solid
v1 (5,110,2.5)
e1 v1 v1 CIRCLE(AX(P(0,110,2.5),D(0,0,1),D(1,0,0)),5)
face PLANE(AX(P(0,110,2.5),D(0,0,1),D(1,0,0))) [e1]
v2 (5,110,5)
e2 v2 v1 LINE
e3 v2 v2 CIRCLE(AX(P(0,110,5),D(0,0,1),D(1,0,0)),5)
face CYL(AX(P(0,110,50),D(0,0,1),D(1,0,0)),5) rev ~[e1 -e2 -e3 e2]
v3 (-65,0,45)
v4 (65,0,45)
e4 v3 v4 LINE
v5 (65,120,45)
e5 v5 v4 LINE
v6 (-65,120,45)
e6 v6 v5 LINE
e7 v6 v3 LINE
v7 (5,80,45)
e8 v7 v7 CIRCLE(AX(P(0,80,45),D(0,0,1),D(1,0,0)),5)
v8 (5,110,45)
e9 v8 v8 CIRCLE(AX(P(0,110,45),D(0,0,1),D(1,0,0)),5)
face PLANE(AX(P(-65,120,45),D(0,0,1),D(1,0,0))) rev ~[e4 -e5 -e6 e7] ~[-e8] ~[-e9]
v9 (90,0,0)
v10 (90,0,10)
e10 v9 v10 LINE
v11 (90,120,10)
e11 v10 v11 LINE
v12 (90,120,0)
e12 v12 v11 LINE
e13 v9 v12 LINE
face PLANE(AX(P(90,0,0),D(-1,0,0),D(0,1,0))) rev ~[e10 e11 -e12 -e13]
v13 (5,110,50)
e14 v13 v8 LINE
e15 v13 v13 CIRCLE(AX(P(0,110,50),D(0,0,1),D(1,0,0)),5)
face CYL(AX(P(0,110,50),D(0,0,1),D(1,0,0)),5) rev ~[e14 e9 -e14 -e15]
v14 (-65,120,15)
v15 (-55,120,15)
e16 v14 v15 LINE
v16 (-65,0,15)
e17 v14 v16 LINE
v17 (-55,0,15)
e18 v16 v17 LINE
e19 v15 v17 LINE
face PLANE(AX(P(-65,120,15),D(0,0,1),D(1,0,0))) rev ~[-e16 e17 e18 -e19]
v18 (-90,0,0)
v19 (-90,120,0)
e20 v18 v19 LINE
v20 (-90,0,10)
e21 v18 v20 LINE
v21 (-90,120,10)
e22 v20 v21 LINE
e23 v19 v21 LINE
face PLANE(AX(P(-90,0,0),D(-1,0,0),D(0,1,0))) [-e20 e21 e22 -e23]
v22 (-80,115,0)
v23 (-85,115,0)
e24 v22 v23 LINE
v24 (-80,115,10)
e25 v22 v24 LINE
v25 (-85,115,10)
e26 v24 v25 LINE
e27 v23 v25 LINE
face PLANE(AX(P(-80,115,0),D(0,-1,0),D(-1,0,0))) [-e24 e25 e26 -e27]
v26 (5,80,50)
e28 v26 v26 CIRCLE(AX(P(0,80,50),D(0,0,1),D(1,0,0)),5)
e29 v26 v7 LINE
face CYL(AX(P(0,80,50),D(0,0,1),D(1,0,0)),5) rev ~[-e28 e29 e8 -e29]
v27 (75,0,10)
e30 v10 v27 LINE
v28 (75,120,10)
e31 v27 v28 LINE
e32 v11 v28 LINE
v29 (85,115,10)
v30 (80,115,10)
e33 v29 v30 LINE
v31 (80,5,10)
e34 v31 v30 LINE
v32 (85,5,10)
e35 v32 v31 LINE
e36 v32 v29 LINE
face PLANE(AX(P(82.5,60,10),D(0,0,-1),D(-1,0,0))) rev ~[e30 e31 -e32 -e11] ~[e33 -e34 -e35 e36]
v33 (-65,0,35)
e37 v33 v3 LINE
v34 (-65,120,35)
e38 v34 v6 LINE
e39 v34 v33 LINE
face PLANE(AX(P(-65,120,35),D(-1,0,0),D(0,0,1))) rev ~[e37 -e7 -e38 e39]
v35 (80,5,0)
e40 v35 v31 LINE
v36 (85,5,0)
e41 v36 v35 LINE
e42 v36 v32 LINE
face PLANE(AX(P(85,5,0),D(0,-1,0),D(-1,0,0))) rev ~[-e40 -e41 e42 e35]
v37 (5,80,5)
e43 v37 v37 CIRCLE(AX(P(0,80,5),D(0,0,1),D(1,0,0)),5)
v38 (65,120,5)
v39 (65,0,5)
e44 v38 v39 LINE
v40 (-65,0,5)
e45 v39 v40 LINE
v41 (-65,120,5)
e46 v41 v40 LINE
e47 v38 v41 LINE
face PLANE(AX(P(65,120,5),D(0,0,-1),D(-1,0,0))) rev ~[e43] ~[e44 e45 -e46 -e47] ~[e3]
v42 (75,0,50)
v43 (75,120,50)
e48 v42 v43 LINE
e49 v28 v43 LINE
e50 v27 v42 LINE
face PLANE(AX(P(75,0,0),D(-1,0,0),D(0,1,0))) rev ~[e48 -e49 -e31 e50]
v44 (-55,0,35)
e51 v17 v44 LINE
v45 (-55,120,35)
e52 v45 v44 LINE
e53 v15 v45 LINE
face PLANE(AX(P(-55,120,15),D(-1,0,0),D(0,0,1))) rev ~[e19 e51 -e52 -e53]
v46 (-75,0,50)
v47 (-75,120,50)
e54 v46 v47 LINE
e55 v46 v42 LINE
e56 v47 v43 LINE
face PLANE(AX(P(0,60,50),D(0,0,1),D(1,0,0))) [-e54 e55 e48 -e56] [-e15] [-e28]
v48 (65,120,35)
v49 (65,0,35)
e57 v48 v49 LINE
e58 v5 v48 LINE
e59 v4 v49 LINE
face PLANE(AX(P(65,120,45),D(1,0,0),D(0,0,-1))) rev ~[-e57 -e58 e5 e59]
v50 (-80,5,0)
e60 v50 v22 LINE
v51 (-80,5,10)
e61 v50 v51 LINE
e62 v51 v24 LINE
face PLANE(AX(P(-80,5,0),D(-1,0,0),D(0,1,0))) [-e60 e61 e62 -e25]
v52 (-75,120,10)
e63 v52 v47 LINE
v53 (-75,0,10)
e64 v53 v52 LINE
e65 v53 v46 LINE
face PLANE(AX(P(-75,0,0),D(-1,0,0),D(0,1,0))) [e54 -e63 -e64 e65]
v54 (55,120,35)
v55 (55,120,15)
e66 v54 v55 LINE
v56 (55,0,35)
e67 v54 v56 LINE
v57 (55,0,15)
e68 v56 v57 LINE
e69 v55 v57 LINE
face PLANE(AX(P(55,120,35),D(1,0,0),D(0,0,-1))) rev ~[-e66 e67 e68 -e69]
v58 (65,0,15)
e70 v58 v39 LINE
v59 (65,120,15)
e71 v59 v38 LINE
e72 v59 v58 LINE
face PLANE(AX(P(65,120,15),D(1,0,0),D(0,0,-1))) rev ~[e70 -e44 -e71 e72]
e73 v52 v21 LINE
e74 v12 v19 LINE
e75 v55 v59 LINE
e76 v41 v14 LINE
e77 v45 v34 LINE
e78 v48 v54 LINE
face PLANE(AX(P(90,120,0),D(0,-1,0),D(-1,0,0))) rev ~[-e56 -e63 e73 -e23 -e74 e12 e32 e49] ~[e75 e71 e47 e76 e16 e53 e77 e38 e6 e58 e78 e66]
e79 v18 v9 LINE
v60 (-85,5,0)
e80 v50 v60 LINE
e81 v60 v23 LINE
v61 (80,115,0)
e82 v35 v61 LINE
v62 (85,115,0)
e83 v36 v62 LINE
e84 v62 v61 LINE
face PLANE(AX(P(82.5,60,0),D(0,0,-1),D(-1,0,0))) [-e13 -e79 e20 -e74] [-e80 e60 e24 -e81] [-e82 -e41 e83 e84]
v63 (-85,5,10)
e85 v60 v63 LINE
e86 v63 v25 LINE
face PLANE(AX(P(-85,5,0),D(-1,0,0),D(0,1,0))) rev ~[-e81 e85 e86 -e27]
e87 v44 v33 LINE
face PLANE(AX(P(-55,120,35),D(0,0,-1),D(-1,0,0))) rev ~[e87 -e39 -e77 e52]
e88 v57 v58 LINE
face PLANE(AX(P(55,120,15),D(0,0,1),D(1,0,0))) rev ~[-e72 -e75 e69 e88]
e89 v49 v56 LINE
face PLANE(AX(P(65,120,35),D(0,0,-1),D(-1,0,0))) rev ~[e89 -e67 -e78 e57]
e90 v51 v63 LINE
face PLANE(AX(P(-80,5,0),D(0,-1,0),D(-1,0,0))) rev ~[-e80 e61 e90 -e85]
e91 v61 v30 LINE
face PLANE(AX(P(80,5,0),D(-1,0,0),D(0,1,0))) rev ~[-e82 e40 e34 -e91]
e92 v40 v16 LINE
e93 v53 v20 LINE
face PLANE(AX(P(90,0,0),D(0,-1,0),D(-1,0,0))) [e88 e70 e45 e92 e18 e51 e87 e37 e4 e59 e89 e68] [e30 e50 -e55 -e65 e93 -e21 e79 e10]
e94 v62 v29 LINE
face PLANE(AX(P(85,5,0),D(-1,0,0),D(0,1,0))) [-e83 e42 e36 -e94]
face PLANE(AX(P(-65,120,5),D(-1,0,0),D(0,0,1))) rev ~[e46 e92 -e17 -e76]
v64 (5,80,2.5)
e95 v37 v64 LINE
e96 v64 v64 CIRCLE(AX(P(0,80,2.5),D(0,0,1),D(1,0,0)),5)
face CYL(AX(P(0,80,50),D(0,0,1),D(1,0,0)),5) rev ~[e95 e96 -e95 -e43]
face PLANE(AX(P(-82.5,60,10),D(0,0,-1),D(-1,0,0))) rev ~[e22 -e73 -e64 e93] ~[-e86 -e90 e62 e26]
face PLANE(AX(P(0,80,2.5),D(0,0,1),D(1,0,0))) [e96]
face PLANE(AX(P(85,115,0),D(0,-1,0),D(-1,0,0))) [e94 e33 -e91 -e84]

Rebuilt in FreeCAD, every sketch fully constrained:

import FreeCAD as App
import Part
import Sketcher
from FreeCAD import Vector


def add_polygon(sketch, points):
    """Adds a closed chain of lines whose ends are joined by coincident constraints."""
    first, n = sketch.GeometryCount, len(points)
    for a, b in zip(points, points[1:] + points[:1]):
        sketch.addGeometry(Part.LineSegment(App.Vector(*a, 0), App.Vector(*b, 0)), False)
    for i in range(n):
        sketch.addConstraint(Sketcher.Constraint("Coincident", first + i, 2, first + (i + 1) % n, 1))

doc = App.newDocument("Part")
body = doc.addObject("PartDesign::Body", "Body")

# Sketch on XY plane
sketch1 = body.newObject("Sketcher::SketchObject", "Sketch")
sketch1.AttachmentSupport = (doc.getObject("XY_Plane"), [""])
sketch1.MapMode = "FlatFace"
add_polygon(sketch1, [(-75, 120), (-75, 0), (75, 0), (75, 120)])  # lines 0-3
sketch1.addConstraint(Sketcher.Constraint("Vertical", 0))
sketch1.addConstraint(Sketcher.Constraint("Horizontal", 1))
sketch1.addConstraint(Sketcher.Constraint("Vertical", 2))
sketch1.addConstraint(Sketcher.Constraint("Horizontal", 3))
sketch1.addConstraint(Sketcher.Constraint("Symmetric", 0, 2, 1, 2, -1, 1))
sketch1.addConstraint(Sketcher.Constraint("DistanceX", 1, 1, 1, 2, 150.0))
sketch1.addConstraint(Sketcher.Constraint("DistanceY", 0, 2, 0, 1, 120.0))
pad1 = body.newObject("PartDesign::Pad", "Pad")
pad1.Profile = sketch1
pad1.Length = 50

# Sketch on XZ plane
sketch2 = body.newObject("Sketcher::SketchObject", "Sketch001")
sketch2.AttachmentSupport = (doc.getObject("XZ_Plane"), [""])
sketch2.MapMode = "FlatFace"
sketch2.AttachmentOffset = App.Placement(Vector(0, 0, -120), App.Rotation())
add_polygon(sketch2, [(-65, 5), (-65, 15), (-55, 15), (-55, 35), (-65, 35), (-65, 45), (65, 45), (65, 35), (55, 35), (55, 15), (65, 15), (65, 5)])  # lines 0-11
sketch2.addConstraint(Sketcher.Constraint("Vertical", 0))
sketch2.addConstraint(Sketcher.Constraint("Horizontal", 1))
sketch2.addConstraint(Sketcher.Constraint("Vertical", 2))
sketch2.addConstraint(Sketcher.Constraint("Horizontal", 3))
sketch2.addConstraint(Sketcher.Constraint("Vertical", 4))
sketch2.addConstraint(Sketcher.Constraint("Horizontal", 5))
sketch2.addConstraint(Sketcher.Constraint("Vertical", 6))
sketch2.addConstraint(Sketcher.Constraint("Horizontal", 7))
sketch2.addConstraint(Sketcher.Constraint("Vertical", 8))
sketch2.addConstraint(Sketcher.Constraint("Horizontal", 9))
sketch2.addConstraint(Sketcher.Constraint("Vertical", 10))
sketch2.addConstraint(Sketcher.Constraint("Horizontal", 11))
sketch2.addConstraint(Sketcher.Constraint("Symmetric", 3, 2, 6, 2, -2))
sketch2.addConstraint(Sketcher.Constraint("Symmetric", 1, 2, 8, 2, -2))
sketch2.addConstraint(Sketcher.Constraint("Vertical", 0, 2, 3, 2))
sketch2.addConstraint(Sketcher.Constraint("Vertical", 6, 2, 9, 2))
sketch2.addConstraint(Sketcher.Constraint("Equal", 9, 0))
sketch2.addConstraint(Sketcher.Constraint("Equal", 0, 4))
sketch2.addConstraint(Sketcher.Constraint("DistanceX", 1, 1, 1, 2, 10.0))
sketch2.addConstraint(Sketcher.Constraint("DistanceX", 5, 1, 5, 2, 130.0))
sketch2.addConstraint(Sketcher.Constraint("DistanceY", 2, 1, 2, 2, 20.0))
sketch2.addConstraint(Sketcher.Constraint("DistanceY", -1, 1, 0, 2, 15.0))
pocket1 = body.newObject("PartDesign::Pocket", "Pocket")
pocket1.Profile = sketch2
pocket1.Type = "ThroughAll"
pocket1.Reversed = True

# Sketch on XY plane
sketch3 = body.newObject("Sketcher::SketchObject", "Sketch002")
sketch3.AttachmentSupport = (doc.getObject("XY_Plane"), [""])
sketch3.MapMode = "FlatFace"
sketch3.AttachmentOffset = App.Placement(Vector(0, 0, 50), App.Rotation())
sketch3.addGeometry(Part.Circle(Vector(0, 110, 0), Vector(0, 0, 1), 5), False)
sketch3.addGeometry(Part.Circle(Vector(0, 80, 0), Vector(0, 0, 1), 5), False)
sketch3.addConstraint(Sketcher.Constraint("Equal", 0, 1))
sketch3.addConstraint(Sketcher.Constraint("PointOnObject", 0, 3, -2))
sketch3.addConstraint(Sketcher.Constraint("PointOnObject", 1, 3, -2))
sketch3.addConstraint(Sketcher.Constraint("Diameter", 0, 10.0))
sketch3.addConstraint(Sketcher.Constraint("DistanceY", -1, 1, 0, 3, 110.0))
sketch3.addConstraint(Sketcher.Constraint("DistanceY", -1, 1, 1, 3, 80.0))
pocket2 = body.newObject("PartDesign::Pocket", "Pocket001")
pocket2.Profile = sketch3
pocket2.Length = 47.5

# Sketch on XY plane
sketch4 = body.newObject("Sketcher::SketchObject", "Sketch003")
sketch4.AttachmentSupport = (doc.getObject("XY_Plane"), [""])
sketch4.MapMode = "FlatFace"
add_polygon(sketch4, [(90, 120), (90, 0), (75, 0), (75, 120)])  # lines 0-3
add_polygon(sketch4, [(80, 5), (85, 5), (85, 115), (80, 115)])  # lines 4-7
add_polygon(sketch4, [(-75, 120), (-75, 0), (-90, 0), (-90, 120)])  # lines 8-11
add_polygon(sketch4, [(-85, 5), (-80, 5), (-80, 115), (-85, 115)])  # lines 12-15
sketch4.addConstraint(Sketcher.Constraint("Vertical", 0))
sketch4.addConstraint(Sketcher.Constraint("Horizontal", 1))
sketch4.addConstraint(Sketcher.Constraint("Vertical", 2))
sketch4.addConstraint(Sketcher.Constraint("Horizontal", 3))
sketch4.addConstraint(Sketcher.Constraint("Horizontal", 4))
sketch4.addConstraint(Sketcher.Constraint("Vertical", 5))
sketch4.addConstraint(Sketcher.Constraint("Horizontal", 6))
sketch4.addConstraint(Sketcher.Constraint("Vertical", 7))
sketch4.addConstraint(Sketcher.Constraint("Vertical", 8))
sketch4.addConstraint(Sketcher.Constraint("Horizontal", 9))
sketch4.addConstraint(Sketcher.Constraint("Vertical", 10))
sketch4.addConstraint(Sketcher.Constraint("Horizontal", 11))
sketch4.addConstraint(Sketcher.Constraint("Horizontal", 12))
sketch4.addConstraint(Sketcher.Constraint("Vertical", 13))
sketch4.addConstraint(Sketcher.Constraint("Horizontal", 14))
sketch4.addConstraint(Sketcher.Constraint("Vertical", 15))
sketch4.addConstraint(Sketcher.Constraint("Symmetric", 1, 2, 8, 2, -1, 1))
sketch4.addConstraint(Sketcher.Constraint("Symmetric", 0, 2, 9, 2, -2))
sketch4.addConstraint(Sketcher.Constraint("Symmetric", 7, 2, 12, 2, -2))
sketch4.addConstraint(Sketcher.Constraint("Symmetric", 5, 2, 14, 2, -2))
sketch4.addConstraint(Sketcher.Constraint("Horizontal", 3, 2, 10, 2))
sketch4.addConstraint(Sketcher.Constraint("DistanceX", 1, 2, 1, 1, 15.0))
sketch4.addConstraint(Sketcher.Constraint("DistanceX", 4, 1, 4, 2, 5.0))
sketch4.addConstraint(Sketcher.Constraint("DistanceY", 0, 2, 0, 1, 120.0))
sketch4.addConstraint(Sketcher.Constraint("DistanceY", 5, 1, 5, 2, 110.0))
sketch4.addConstraint(Sketcher.Constraint("DistanceX", -1, 1, 0, 2, 90.0))
sketch4.addConstraint(Sketcher.Constraint("DistanceX", -1, 1, 4, 2, 85.0))
sketch4.addConstraint(Sketcher.Constraint("DistanceY", -1, 1, 4, 2, 5.0))
pad2 = body.newObject("PartDesign::Pad", "Pad001")
pad2.Profile = sketch4
pad2.Length = 10

doc.recompute()
